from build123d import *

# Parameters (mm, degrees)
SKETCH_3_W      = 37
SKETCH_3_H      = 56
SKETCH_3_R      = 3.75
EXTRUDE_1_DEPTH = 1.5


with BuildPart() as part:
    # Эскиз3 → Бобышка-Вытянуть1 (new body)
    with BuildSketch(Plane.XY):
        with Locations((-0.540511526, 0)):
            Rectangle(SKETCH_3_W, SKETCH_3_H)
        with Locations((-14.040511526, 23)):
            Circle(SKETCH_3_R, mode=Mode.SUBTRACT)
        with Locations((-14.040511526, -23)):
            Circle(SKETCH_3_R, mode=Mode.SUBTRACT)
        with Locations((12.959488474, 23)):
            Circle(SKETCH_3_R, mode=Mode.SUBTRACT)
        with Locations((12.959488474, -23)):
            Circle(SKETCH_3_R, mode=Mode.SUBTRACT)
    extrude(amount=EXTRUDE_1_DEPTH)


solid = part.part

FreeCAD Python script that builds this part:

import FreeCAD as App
import Part
import Sketcher
from FreeCAD import Vector
Q = App.Units.Quantity


def add_polygon(sketch, points):
    """Adds a closed chain of lines whose ends are joined by coincident constraints."""
    first, n = sketch.GeometryCount, len(points)
    for a, b in zip(points, points[1:] + points[:1]):
        sketch.addGeometry(Part.LineSegment(App.Vector(*a, 0), App.Vector(*b, 0)), False)
    for i in range(n):
        sketch.addConstraint(Sketcher.Constraint("Coincident", first + i, 2, first + (i + 1) % n, 1))

doc = App.newDocument("Part")
body = doc.addObject("PartDesign::Body", "Body")

sketch1 = doc.addObject("Sketcher::SketchObject", "Sketch")
body.addObject(sketch1)
sketch1.AttachmentSupport = (doc.XY_Plane, [""])
sketch1.MapMode = "FlatFace"
add_polygon(sketch1, [(-19, 28), (-19, -28), (18, -28), (18, 28)])
sketch1.addGeometry(Part.Circle(Vector(-14, -23, 0), Vector(0, 0, 1), 3.8), False)
sketch1.addGeometry(Part.Circle(Vector(13, -23, 0), Vector(0, 0, 1), 3.8), False)
sketch1.addGeometry(Part.Circle(Vector(-14, 23, 0), Vector(0, 0, 1), 3.8), False)
sketch1.addGeometry(Part.Circle(Vector(13, 23, 0), Vector(0, 0, 1), 3.8), False)
sketch1.addConstraint(Sketcher.Constraint("Vertical", 0))
sketch1.addConstraint(Sketcher.Constraint("Horizontal", 1))
sketch1.addConstraint(Sketcher.Constraint("Vertical", 2))
sketch1.addConstraint(Sketcher.Constraint("Horizontal", 3))
sketch1.addConstraint(Sketcher.Constraint("Equal", 4, 5))
sketch1.addConstraint(Sketcher.Constraint("Equal", 5, 6))
sketch1.addConstraint(Sketcher.Constraint("Equal", 6, 7))
sketch1.addConstraint(Sketcher.Constraint("Symmetric", 4, 3, 6, 3, -1))
sketch1.addConstraint(Sketcher.Constraint("Symmetric", 5, 3, 7, 3, -1))
sketch1.addConstraint(Sketcher.Constraint("Horizontal", 4, 3, 5, 3))
sketch1.addConstraint(Sketcher.Constraint("Diameter", 4, Q("7.5 mm")))
sketch1.addConstraint(Sketcher.Constraint("DistanceX", 1, 1, 1, 2, Q("37 mm")))
sketch1.addConstraint(Sketcher.Constraint("DistanceY", 0, 2, 0, 1, Q("56 mm")))
sketch1.addConstraint(Sketcher.Constraint("DistanceY", 4, 3, -1, 1, Q("23 mm")))
sketch1.addConstraint(Sketcher.Constraint("DistanceY", 0, 2, -1, 1, Q("28 mm")))
sketch1.addConstraint(Sketcher.Constraint("DistanceX", 4, 3, 5, 3, Q("27 mm")))
sketch1.addConstraint(Sketcher.Constraint("DistanceX", 0, 2, 4, 3, Q("5 mm")))
sketch1.addConstraint(Sketcher.Constraint("DistanceX", 4, 3, -1, 1, Q("14.040512 mm")))
pad1 = doc.addObject("PartDesign::Pad", "Pad")
body.addObject(pad1)
pad1.Profile = sketch1
pad1.Length = 1.5

doc.recompute()
